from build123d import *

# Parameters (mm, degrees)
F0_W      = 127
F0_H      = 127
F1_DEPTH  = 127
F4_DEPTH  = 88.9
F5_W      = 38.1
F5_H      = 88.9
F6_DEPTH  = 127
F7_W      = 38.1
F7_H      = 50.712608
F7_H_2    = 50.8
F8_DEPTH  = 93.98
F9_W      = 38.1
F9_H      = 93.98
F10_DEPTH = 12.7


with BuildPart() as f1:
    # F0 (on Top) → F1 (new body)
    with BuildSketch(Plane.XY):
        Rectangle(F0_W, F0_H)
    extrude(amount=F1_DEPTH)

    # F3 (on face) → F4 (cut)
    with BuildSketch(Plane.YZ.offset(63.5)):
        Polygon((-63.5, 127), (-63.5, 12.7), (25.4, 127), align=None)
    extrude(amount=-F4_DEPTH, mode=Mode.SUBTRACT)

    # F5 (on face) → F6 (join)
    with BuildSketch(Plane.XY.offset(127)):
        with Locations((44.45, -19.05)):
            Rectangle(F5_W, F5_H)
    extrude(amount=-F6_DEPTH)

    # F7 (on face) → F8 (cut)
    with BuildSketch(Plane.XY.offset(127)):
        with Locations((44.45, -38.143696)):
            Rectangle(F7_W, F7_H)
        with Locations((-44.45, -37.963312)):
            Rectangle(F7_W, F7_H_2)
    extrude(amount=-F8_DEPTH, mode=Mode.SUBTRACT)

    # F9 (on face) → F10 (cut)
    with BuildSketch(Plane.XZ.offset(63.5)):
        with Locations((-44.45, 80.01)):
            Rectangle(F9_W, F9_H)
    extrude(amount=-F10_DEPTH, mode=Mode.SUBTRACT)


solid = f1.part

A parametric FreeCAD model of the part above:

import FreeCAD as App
import Part
import Sketcher
from FreeCAD import Vector
Q = App.Units.Quantity


def add_polygon(sketch, points):
    """Adds a closed chain of lines whose ends are joined by coincident constraints."""
    first, n = sketch.GeometryCount, len(points)
    for a, b in zip(points, points[1:] + points[:1]):
        sketch.addGeometry(Part.LineSegment(App.Vector(*a, 0), App.Vector(*b, 0)), False)
    for i in range(n):
        sketch.addConstraint(Sketcher.Constraint("Coincident", first + i, 2, first + (i + 1) % n, 1))

doc = App.newDocument("Part")
body = doc.addObject("PartDesign::Body", "Body")

sketch1 = body.newObject("Sketcher::SketchObject", "Sketch")
sketch1.AttachmentSupport = (doc.getObject("XY_Plane"), [""])
sketch1.MapMode = "FlatFace"
add_polygon(sketch1, [(-64, 64), (-64, -64), (64, -64), (64, 64)])
sketch1.addConstraint(Sketcher.Constraint("Vertical", 0))
sketch1.addConstraint(Sketcher.Constraint("Horizontal", 1))
sketch1.addConstraint(Sketcher.Constraint("Vertical", 2))
sketch1.addConstraint(Sketcher.Constraint("Horizontal", 3))
sketch1.addConstraint(Sketcher.Constraint("Symmetric", 0, 2, 2, 2, -1, 1))
sketch1.addConstraint(Sketcher.Constraint("Equal", 3, 0))
sketch1.addConstraint(Sketcher.Constraint("DistanceX", 1, 1, 1, 2, Q("5 in")))
pad1 = body.newObject("PartDesign::Pad", "Pad")
pad1.Profile = sketch1
pad1.Length = Q("5 in")

sketch2 = body.newObject("Sketcher::SketchObject", "Sketch001")
sketch2.AttachmentSupport = (doc.getObject("YZ_Plane"), [""])
sketch2.MapMode = "FlatFace"
sketch2.AttachmentOffset = App.Placement(Vector(0, 0, 2.5 * 25.4), App.Rotation())
add_polygon(sketch2, [(-64, 127), (-64, 13), (25, 127)])
sketch2.addConstraint(Sketcher.Constraint("Vertical", 0))
sketch2.addConstraint(Sketcher.Constraint("Horizontal", 2))
sketch2.addConstraint(Sketcher.Constraint("DistanceX", 2, 2, 2, 1, Q("3.5 in")))
sketch2.addConstraint(Sketcher.Constraint("DistanceY", 0, 2, 0, 1, Q("4.5 in")))
sketch2.addConstraint(Sketcher.Constraint("DistanceX", -1, 1, 1, 2, Q("1 in")))
sketch2.addConstraint(Sketcher.Constraint("DistanceY", -1, 1, 1, 2, Q("5 in")))
pocket1 = body.newObject("PartDesign::Pocket", "Pocket")
pocket1.Profile = sketch2
pocket1.Length = Q("3.5 in")

sketch3 = body.newObject("Sketcher::SketchObject", "Sketch002")
sketch3.AttachmentSupport = (doc.getObject("XY_Plane"), [""])
sketch3.MapMode = "FlatFace"
sketch3.AttachmentOffset = App.Placement(Vector(0, 0, 5 * 25.4), App.Rotation())
add_polygon(sketch3, [(25, 25), (25, -64), (64, -64), (64, 25)])
sketch3.addConstraint(Sketcher.Constraint("Vertical", 0))
sketch3.addConstraint(Sketcher.Constraint("Horizontal", 1))
sketch3.addConstraint(Sketcher.Constraint("Vertical", 2))
sketch3.addConstraint(Sketcher.Constraint("Horizontal", 3))
sketch3.addConstraint(Sketcher.Constraint("DistanceX", 1, 1, 1, 2, Q("1.5 in")))
sketch3.addConstraint(Sketcher.Constraint("DistanceY", 0, 2, 0, 1, Q("3.5 in")))
sketch3.addConstraint(Sketcher.Constraint("DistanceX", -1, 1, 0, 2, Q("1 in")))
sketch3.addConstraint(Sketcher.Constraint("DistanceY", -1, 1, 2, 2, Q("1 in")))
pad2 = body.newObject("PartDesign::Pad", "Pad001")
pad2.Profile = sketch3
pad2.Length = Q("5 in")
pad2.Reversed = True

sketch4 = body.newObject("Sketcher::SketchObject", "Sketch003")
sketch4.AttachmentSupport = (doc.getObject("XY_Plane"), [""])
sketch4.MapMode = "FlatFace"
sketch4.AttachmentOffset = App.Placement(Vector(0, 0, 5 * 25.4), App.Rotation())
add_polygon(sketch4, [(25, -13), (25, -64), (64, -64), (64, -13)])
add_polygon(sketch4, [(-64, -13), (-64, -63), (-25, -63), (-25, -13)])
sketch4.addConstraint(Sketcher.Constraint("Vertical", 0))
sketch4.addConstraint(Sketcher.Constraint("Horizontal", 1))
sketch4.addConstraint(Sketcher.Constraint("Vertical", 2))
sketch4.addConstraint(Sketcher.Constraint("Horizontal", 3))
sketch4.addConstraint(Sketcher.Constraint("Vertical", 4))
sketch4.addConstraint(Sketcher.Constraint("Horizontal", 5))
sketch4.addConstraint(Sketcher.Constraint("Vertical", 6))
sketch4.addConstraint(Sketcher.Constraint("Horizontal", 7))
sketch4.addConstraint(Sketcher.Constraint("Equal", 3, 5))
sketch4.addConstraint(Sketcher.Constraint("DistanceY", 4, 2, 4, 1, Q("2 in")))
sketch4.addConstraint(Sketcher.Constraint("DistanceX", 1, 1, 1, 2, Q("1.5 in")))
sketch4.addConstraint(Sketcher.Constraint("DistanceX", -1, 1, 0, 2, Q("1 in")))
sketch4.addConstraint(Sketcher.Constraint("DistanceX", 5, 2, -1, 1, Q("1 in")))
sketch4.addConstraint(Sketcher.Constraint("DistanceY", 0, 2, -1, 1, Q("2.5 in")))
sketch4.addConstraint(Sketcher.Constraint("DistanceY", 0, 2, 0, 1, 50.712608))
sketch4.addConstraint(Sketcher.Constraint("DistanceY", 4, 2, 3, 2, 50.57592))
pocket2 = body.newObject("PartDesign::Pocket", "Pocket001")
pocket2.Profile = sketch4
pocket2.Length = Q("3.7 in")

sketch5 = body.newObject("Sketcher::SketchObject", "Sketch004")
sketch5.AttachmentSupport = (doc.getObject("XZ_Plane"), [""])
sketch5.MapMode = "FlatFace"
sketch5.AttachmentOffset = App.Placement(Vector(0, 0, 2.5 * 25.4), App.Rotation())
add_polygon(sketch5, [(-64, 127), (-64, 33), (-25, 33), (-25, 127)])
sketch5.addConstraint(Sketcher.Constraint("Vertical", 0))
sketch5.addConstraint(Sketcher.Constraint("Horizontal", 1))
sketch5.addConstraint(Sketcher.Constraint("Vertical", 2))
sketch5.addConstraint(Sketcher.Constraint("Horizontal", 3))
sketch5.addConstraint(Sketcher.Constraint("DistanceX", 1, 1, 1, 2, Q("1.5 in")))
sketch5.addConstraint(Sketcher.Constraint("DistanceY", 0, 2, 0, 1, Q("3.7 in")))
sketch5.addConstraint(Sketcher.Constraint("DistanceX", 1, 2, -1, 1, Q("1 in")))
sketch5.addConstraint(Sketcher.Constraint("DistanceY", -1, 1, 2, 2, Q("5 in")))
pocket3 = body.newObject("PartDesign::Pocket", "Pocket002")
pocket3.Profile = sketch5
pocket3.Length = Q("0.5 in")

doc.recompute()
